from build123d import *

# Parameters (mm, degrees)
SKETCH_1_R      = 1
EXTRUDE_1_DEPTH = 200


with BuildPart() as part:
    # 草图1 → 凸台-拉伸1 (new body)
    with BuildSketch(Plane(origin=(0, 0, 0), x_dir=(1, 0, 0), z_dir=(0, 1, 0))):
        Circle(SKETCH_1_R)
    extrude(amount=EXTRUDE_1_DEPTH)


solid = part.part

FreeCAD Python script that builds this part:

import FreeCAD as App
import Part
import Sketcher
from FreeCAD import Vector

doc = App.newDocument("Part")
body = doc.addObject("PartDesign::Body", "Body")

# Sketch on XZ plane
sketch1 = doc.addObject("Sketcher::SketchObject", "Sketch")
body.addObject(sketch1)
sketch1.AttachmentSupport = (doc.XZ_Plane, [""])
sketch1.MapMode = "FlatFace"
sketch1.addGeometry(Part.Circle(Vector(0, 0, 0), Vector(0, 0, 1), 1), False)
sketch1.addConstraint([
    Sketcher.Constraint("Coincident", 0, 3, -1, 1),
    Sketcher.Constraint("Diameter", 0, 2.0),
])
pad1 = doc.addObject("PartDesign::Pad", "Pad")
body.addObject(pad1)
pad1.Profile = sketch1
pad1.Length = 200
pad1.Reversed = True

doc.recompute()
